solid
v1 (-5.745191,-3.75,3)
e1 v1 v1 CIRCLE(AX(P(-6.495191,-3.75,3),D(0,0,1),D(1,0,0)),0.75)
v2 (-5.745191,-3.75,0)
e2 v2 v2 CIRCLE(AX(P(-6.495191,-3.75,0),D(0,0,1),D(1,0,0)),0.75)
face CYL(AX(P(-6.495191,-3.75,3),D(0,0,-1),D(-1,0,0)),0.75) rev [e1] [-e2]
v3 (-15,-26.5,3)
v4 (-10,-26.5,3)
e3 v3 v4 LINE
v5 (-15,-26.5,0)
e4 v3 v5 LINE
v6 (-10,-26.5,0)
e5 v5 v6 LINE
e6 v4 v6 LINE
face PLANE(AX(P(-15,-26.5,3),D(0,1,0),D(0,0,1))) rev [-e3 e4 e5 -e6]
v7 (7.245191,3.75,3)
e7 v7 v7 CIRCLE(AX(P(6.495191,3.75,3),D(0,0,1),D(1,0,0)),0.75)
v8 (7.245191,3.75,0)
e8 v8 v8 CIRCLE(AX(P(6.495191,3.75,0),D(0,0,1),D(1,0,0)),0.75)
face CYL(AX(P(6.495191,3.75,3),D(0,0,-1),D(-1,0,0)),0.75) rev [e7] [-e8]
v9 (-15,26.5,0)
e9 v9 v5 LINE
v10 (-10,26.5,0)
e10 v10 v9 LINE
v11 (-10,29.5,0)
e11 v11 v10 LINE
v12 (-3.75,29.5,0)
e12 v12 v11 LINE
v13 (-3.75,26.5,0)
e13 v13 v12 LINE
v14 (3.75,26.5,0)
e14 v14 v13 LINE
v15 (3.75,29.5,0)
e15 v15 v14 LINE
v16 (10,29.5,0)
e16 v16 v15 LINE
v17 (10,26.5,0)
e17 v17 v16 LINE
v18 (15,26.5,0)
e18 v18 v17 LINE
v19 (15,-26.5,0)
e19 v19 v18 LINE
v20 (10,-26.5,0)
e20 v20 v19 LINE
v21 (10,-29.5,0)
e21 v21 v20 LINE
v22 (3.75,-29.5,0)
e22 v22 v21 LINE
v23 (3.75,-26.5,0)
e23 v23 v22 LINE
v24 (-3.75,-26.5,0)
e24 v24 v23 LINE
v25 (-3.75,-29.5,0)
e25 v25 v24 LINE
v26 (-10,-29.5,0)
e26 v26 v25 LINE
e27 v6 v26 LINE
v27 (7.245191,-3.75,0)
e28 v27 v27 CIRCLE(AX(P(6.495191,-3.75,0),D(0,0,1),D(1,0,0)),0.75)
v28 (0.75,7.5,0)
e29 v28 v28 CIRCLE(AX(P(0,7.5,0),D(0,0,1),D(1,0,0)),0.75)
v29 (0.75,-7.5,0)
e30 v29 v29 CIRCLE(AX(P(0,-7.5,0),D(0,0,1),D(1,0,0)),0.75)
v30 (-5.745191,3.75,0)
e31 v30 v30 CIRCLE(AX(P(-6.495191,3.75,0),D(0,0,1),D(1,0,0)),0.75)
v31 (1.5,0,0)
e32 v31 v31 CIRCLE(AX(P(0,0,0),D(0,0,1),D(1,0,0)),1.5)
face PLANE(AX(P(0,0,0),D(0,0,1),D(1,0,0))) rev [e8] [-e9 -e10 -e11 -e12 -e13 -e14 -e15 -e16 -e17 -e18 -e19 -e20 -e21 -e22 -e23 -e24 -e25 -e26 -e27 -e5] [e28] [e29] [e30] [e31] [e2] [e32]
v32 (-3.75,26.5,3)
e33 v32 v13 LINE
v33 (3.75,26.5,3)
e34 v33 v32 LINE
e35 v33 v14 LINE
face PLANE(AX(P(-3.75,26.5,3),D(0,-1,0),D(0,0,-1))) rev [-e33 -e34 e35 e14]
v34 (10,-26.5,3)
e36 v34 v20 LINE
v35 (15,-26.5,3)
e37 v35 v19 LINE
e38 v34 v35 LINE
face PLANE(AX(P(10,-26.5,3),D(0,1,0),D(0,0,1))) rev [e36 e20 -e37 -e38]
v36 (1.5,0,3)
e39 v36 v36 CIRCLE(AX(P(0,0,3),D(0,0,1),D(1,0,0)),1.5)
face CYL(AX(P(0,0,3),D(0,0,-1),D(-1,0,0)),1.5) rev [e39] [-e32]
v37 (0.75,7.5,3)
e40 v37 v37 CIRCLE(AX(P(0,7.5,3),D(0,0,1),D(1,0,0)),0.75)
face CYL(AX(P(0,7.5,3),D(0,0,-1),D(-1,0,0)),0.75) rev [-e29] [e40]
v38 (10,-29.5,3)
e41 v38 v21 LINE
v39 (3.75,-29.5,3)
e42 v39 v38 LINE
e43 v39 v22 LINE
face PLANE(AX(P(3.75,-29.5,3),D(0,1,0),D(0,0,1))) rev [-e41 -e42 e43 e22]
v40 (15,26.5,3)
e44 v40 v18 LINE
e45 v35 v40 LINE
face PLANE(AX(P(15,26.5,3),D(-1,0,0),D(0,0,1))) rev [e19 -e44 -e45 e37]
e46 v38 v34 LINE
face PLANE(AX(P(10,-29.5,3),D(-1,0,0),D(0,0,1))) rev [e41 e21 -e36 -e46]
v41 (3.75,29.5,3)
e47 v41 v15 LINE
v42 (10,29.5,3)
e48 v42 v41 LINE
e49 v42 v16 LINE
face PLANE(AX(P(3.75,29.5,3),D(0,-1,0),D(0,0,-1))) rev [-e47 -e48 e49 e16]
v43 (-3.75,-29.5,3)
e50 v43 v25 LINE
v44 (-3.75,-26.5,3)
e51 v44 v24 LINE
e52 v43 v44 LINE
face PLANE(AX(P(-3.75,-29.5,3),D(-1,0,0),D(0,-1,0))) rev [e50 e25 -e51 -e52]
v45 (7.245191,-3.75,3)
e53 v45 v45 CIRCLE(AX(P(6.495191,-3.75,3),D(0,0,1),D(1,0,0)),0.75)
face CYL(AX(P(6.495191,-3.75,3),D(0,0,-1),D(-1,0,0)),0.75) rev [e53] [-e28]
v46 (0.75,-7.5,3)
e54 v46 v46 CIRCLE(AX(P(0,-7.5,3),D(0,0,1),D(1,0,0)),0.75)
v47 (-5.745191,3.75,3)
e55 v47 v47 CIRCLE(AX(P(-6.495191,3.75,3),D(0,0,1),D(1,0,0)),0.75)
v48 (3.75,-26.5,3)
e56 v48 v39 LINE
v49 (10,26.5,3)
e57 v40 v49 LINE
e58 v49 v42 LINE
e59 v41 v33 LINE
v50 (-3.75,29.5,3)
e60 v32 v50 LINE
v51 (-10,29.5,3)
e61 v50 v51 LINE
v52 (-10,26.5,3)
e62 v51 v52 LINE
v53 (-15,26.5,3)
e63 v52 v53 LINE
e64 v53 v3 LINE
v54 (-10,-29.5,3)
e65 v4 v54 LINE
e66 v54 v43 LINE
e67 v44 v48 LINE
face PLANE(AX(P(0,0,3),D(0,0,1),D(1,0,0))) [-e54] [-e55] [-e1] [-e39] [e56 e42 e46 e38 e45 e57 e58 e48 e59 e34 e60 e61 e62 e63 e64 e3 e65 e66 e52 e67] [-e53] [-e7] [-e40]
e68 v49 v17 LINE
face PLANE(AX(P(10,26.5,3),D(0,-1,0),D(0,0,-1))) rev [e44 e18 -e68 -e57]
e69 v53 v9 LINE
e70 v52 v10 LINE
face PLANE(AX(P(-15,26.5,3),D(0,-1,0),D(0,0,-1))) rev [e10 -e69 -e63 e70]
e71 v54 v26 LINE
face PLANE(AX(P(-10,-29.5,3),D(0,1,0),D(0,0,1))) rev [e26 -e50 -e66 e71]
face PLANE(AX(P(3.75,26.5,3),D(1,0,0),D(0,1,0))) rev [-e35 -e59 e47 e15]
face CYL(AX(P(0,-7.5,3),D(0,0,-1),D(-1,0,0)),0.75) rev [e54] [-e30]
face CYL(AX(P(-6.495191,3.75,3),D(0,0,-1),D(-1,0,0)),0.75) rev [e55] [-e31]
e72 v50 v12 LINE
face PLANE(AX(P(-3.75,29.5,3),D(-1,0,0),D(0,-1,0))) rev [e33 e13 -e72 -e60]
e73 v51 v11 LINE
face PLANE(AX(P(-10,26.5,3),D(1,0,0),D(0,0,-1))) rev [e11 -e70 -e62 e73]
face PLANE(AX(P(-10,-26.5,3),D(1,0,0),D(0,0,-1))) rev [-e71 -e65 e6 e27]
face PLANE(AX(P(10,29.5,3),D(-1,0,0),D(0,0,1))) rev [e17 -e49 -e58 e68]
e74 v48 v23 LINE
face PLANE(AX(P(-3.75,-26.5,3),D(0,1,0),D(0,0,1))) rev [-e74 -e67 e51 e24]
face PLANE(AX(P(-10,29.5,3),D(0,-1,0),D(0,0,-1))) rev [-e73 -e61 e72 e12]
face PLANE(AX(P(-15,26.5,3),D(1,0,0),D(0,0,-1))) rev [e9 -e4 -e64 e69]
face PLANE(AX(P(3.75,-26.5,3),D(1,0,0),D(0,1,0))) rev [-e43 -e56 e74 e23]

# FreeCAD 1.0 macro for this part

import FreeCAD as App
import Part
import Sketcher
from FreeCAD import Vector

doc = App.newDocument("Part")
body = doc.addObject("PartDesign::Body", "Body")

sketch1 = doc.addObject("Sketcher::SketchObject", "Sketch")
body.addObject(sketch1)
sketch1.AttachmentSupport = (doc.XY_Plane, [""])
sketch1.MapMode = "FlatFace"
sketch1.addGeometry([
    Part.LineSegment(Vector(-10, 26.5, 0), Vector(-15, 26.5, 0)),
    Part.LineSegment(Vector(-15, 26.5, 0), Vector(-15, -26.5, 0)),
    Part.LineSegment(Vector(-15, -26.5, 0), Vector(-10, -26.5, 0)),
    Part.LineSegment(Vector(-10, -26.5, 0), Vector(-10, -29.5, 0)),
    Part.LineSegment(Vector(-10, -29.5, 0), Vector(-3.75, -29.5, 0)),
    Part.LineSegment(Vector(-3.75, -29.5, 0), Vector(-3.75, -26.5, 0)),
    Part.LineSegment(Vector(-3.75, -26.5, 0), Vector(3.75, -26.5, 0)),
    Part.LineSegment(Vector(3.75, -26.5, 0), Vector(3.75, -29.5, 0)),
    Part.LineSegment(Vector(3.75, -29.5, 0), Vector(10, -29.5, 0)),
    Part.LineSegment(Vector(10, -29.5, 0), Vector(10, -26.5, 0)),
    Part.LineSegment(Vector(10, -26.5, 0), Vector(15, -26.5, 0)),
    Part.LineSegment(Vector(15, -26.5, 0), Vector(15, 26.5, 0)),
    Part.LineSegment(Vector(15, 26.5, 0), Vector(10, 26.5, 0)),
    Part.LineSegment(Vector(10, 26.5, 0), Vector(10, 29.5, 0)),
    Part.LineSegment(Vector(10, 29.5, 0), Vector(3.75, 29.5, 0)),
    Part.LineSegment(Vector(3.75, 29.5, 0), Vector(3.75, 26.5, 0)),
    Part.LineSegment(Vector(3.75, 26.5, 0), Vector(-3.75, 26.5, 0)),
    Part.LineSegment(Vector(-3.75, 26.5, 0), Vector(-3.75, 29.5, 0)),
    Part.LineSegment(Vector(-3.75, 29.5, 0), Vector(-10, 29.5, 0)),
    Part.LineSegment(Vector(-10, 29.5, 0), Vector(-10, 26.5, 0)),
    Part.Circle(Vector(6.495191, -3.75, 0), Vector(0, 0, 1), 0.75),
    Part.Circle(Vector(0, -7.5, 0), Vector(0, 0, 1), 0.75),
    Part.Circle(Vector(-6.495191, -3.75, 0), Vector(0, 0, 1), 0.75),
    Part.Circle(Vector(6.495191, 3.75, 0), Vector(0, 0, 1), 0.75),
    Part.Circle(Vector(0, 0, 0), Vector(0, 0, 1), 1.5),
    Part.Circle(Vector(-6.495191, 3.75, 0), Vector(0, 0, 1), 0.75),
    Part.Circle(Vector(0, 7.5, 0), Vector(0, 0, 1), 0.75),
], False)
sketch1.addConstraint([
    Sketcher.Constraint("Coincident", 0, 2, 1, 1),
    Sketcher.Constraint("Coincident", 1, 2, 2, 1),
    Sketcher.Constraint("Coincident", 2, 2, 3, 1),
    Sketcher.Constraint("Coincident", 3, 2, 4, 1),
    Sketcher.Constraint("Coincident", 4, 2, 5, 1),
    Sketcher.Constraint("Coincident", 5, 2, 6, 1),
    Sketcher.Constraint("Coincident", 6, 2, 7, 1),
    Sketcher.Constraint("Coincident", 7, 2, 8, 1),
    Sketcher.Constraint("Coincident", 8, 2, 9, 1),
    Sketcher.Constraint("Coincident", 9, 2, 10, 1),
    Sketcher.Constraint("Coincident", 10, 2, 11, 1),
    Sketcher.Constraint("Coincident", 11, 2, 12, 1),
    Sketcher.Constraint("Coincident", 12, 2, 13, 1),
    Sketcher.Constraint("Coincident", 13, 2, 14, 1),
    Sketcher.Constraint("Coincident", 14, 2, 15, 1),
    Sketcher.Constraint("Coincident", 15, 2, 16, 1),
    Sketcher.Constraint("Coincident", 16, 2, 17, 1),
    Sketcher.Constraint("Coincident", 17, 2, 18, 1),
    Sketcher.Constraint("Coincident", 18, 2, 19, 1),
    Sketcher.Constraint("Coincident", 19, 2, 0, 1),
    Sketcher.Constraint("Horizontal", 0),
    Sketcher.Constraint("Vertical", 1),
    Sketcher.Constraint("Horizontal", 2),
    Sketcher.Constraint("Vertical", 3),
    Sketcher.Constraint("Horizontal", 4),
    Sketcher.Constraint("Vertical", 5),
    Sketcher.Constraint("Horizontal", 6),
    Sketcher.Constraint("Vertical", 7),
    Sketcher.Constraint("Horizontal", 8),
    Sketcher.Constraint("Vertical", 9),
    Sketcher.Constraint("Horizontal", 10),
    Sketcher.Constraint("Vertical", 11),
    Sketcher.Constraint("Horizontal", 12),
    Sketcher.Constraint("Vertical", 13),
    Sketcher.Constraint("Horizontal", 14),
    Sketcher.Constraint("Vertical", 15),
    Sketcher.Constraint("Horizontal", 16),
    Sketcher.Constraint("Vertical", 17),
    Sketcher.Constraint("Horizontal", 18),
    Sketcher.Constraint("Vertical", 19),
    Sketcher.Constraint("Coincident", 24, 3, -1, 1),
    Sketcher.Constraint("Equal", 20, 21),
    Sketcher.Constraint("Equal", 21, 22),
    Sketcher.Constraint("Equal", 22, 23),
    Sketcher.Constraint("Equal", 23, 25),
    Sketcher.Constraint("Equal", 25, 26),
    Sketcher.Constraint("Symmetric", 22, 3, 23, 3, -1, 1),
    Sketcher.Constraint("Symmetric", 20, 3, 25, 3, -1, 1),
    Sketcher.Constraint("Symmetric", 21, 3, 26, 3, -1, 1),
    Sketcher.Constraint("Symmetric", 0, 2, 10, 2, -1, 1),
    Sketcher.Constraint("Symmetric", 2, 2, 12, 2, -1, 1),
    Sketcher.Constraint("Symmetric", 4, 2, 14, 2, -1, 1),
    Sketcher.Constraint("Symmetric", 6, 2, 16, 2, -1, 1),
    Sketcher.Constraint("Symmetric", 8, 2, 18, 2, -1, 1),
    Sketcher.Constraint("Symmetric", 20, 3, 22, 3, -2),
    Sketcher.Constraint("Symmetric", 4, 2, 7, 2, -2),
    Sketcher.Constraint("Symmetric", 2, 2, 9, 2, -2),
    Sketcher.Constraint("PointOnObject", 21, 3, -2),
    Sketcher.Constraint("Horizontal", 2, 2, 5, 2),
    Sketcher.Constraint("Diameter", 24, 3.0),
    Sketcher.Constraint("Diameter", 20, 1.5),
    Sketcher.Constraint("DistanceX", 0, 2, 0, 1, 5.0),
    Sketcher.Constraint("DistanceY", 1, 2, 1, 1, 53.0),
    Sketcher.Constraint("DistanceY", 3, 2, 3, 1, 3.0),
    Sketcher.Constraint("DistanceX", 6, 1, 6, 2, 7.5),
    Sketcher.Constraint("DistanceX", 0, 2, -1, 1, 15.0),
    Sketcher.Constraint("DistanceY", 26, 3, 0, 2, 19.0),
    Sketcher.Constraint("DistanceY", 20, 3, 23, 3, 7.5),
    Sketcher.Constraint("DistanceX", -1, 1, 20, 3, 6.495191),
])
pad1 = doc.addObject("PartDesign::Pad", "Pad")
body.addObject(pad1)
pad1.Profile = sketch1
pad1.Length = 3

doc.recompute()
